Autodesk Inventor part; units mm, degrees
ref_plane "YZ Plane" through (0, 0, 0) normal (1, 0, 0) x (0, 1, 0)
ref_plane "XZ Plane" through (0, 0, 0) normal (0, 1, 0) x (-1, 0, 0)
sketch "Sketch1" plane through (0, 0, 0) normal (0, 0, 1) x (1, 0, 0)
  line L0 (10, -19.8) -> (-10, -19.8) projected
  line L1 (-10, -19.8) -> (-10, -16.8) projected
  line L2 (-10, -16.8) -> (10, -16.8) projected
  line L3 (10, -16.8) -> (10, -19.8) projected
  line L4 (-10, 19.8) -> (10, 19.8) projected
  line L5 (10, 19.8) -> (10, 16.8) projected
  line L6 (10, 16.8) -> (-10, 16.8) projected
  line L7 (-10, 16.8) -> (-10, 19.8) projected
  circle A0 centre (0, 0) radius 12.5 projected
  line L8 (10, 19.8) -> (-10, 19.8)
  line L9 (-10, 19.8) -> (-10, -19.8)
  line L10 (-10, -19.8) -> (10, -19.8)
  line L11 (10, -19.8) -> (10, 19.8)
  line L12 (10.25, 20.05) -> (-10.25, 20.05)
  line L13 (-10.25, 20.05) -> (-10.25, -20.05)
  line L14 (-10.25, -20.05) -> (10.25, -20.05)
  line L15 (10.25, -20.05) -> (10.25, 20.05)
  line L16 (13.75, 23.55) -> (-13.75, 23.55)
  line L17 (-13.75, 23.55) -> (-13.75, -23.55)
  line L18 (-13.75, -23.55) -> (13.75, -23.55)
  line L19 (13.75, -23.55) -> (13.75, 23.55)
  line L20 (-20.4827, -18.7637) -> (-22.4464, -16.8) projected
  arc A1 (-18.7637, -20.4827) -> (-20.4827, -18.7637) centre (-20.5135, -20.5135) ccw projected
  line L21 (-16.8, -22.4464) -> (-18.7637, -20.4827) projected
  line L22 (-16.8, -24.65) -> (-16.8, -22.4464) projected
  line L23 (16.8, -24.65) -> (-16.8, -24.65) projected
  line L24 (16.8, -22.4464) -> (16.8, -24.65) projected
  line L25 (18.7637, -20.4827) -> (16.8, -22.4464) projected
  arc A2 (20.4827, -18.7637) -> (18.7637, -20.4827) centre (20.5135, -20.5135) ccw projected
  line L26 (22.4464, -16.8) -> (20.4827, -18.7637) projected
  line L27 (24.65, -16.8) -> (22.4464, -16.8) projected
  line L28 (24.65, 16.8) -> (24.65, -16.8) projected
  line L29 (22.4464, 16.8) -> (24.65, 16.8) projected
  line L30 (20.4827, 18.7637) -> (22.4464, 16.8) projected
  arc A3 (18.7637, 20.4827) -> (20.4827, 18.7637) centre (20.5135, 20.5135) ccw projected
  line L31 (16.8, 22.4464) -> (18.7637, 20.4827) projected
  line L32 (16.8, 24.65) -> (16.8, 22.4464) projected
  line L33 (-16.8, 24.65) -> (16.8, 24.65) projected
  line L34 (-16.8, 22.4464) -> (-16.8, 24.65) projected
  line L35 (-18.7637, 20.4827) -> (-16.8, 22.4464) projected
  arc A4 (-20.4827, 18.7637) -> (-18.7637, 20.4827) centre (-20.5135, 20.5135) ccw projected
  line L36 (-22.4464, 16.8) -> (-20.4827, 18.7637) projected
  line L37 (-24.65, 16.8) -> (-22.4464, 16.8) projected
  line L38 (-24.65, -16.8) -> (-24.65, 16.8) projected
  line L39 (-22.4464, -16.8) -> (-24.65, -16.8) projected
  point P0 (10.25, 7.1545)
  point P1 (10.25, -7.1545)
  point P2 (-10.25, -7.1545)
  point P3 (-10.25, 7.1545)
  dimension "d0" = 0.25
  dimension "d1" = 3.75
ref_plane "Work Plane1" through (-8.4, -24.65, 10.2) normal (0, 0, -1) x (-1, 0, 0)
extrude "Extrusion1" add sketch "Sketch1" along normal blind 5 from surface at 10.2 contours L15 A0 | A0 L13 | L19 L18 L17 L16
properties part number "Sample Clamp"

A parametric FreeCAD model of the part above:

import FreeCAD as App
import Part
import Sketcher
from FreeCAD import Vector


def add_polygon(sketch, points):
    """Adds a closed chain of lines whose ends are joined by coincident constraints."""
    first, n = sketch.GeometryCount, len(points)
    for a, b in zip(points, points[1:] + points[:1]):
        sketch.addGeometry(Part.LineSegment(App.Vector(*a, 0), App.Vector(*b, 0)), False)
    for i in range(n):
        sketch.addConstraint(Sketcher.Constraint("Coincident", first + i, 2, first + (i + 1) % n, 1))

doc = App.newDocument("Part")
body = doc.addObject("PartDesign::Body", "Body")

sketch1 = doc.addObject("Sketcher::SketchObject", "Sketch")
body.addObject(sketch1)
sketch1.AttachmentSupport = (doc.XY_Plane, [""])
sketch1.MapMode = "FlatFace"
sketch1.AttachmentOffset = App.Placement(Vector(0, 0, 10.2), App.Rotation())
add_polygon(sketch1, [(14, -24), (14, 24), (-14, 24), (-14, -24)])
add_polygon(sketch1, [(10, -20), (-10, -20), (-10, 20), (10, 20)])
sketch1.addConstraint([
    Sketcher.Constraint("Vertical", 0),
    Sketcher.Constraint("Horizontal", 1),
    Sketcher.Constraint("Vertical", 2),
    Sketcher.Constraint("Horizontal", 3),
    Sketcher.Constraint("Horizontal", 4),
    Sketcher.Constraint("Vertical", 5),
    Sketcher.Constraint("Horizontal", 6),
    Sketcher.Constraint("Vertical", 7),
    Sketcher.Constraint("Symmetric", 0, 2, 2, 2, -1, 1),
    Sketcher.Constraint("Symmetric", 4, 2, 6, 2, -1, 1),
    Sketcher.Constraint("DistanceX", 1, 2, 1, 1, 27.5),
    Sketcher.Constraint("DistanceX", 4, 2, 4, 1, 20.5),
    Sketcher.Constraint("DistanceY", 0, 1, 0, 2, 47.1),
    Sketcher.Constraint("DistanceY", 5, 1, 5, 2, 40.1),
])
pad1 = doc.addObject("PartDesign::Pad", "Pad")
body.addObject(pad1)
pad1.Profile = sketch1
pad1.Length = 5

doc.recompute()
